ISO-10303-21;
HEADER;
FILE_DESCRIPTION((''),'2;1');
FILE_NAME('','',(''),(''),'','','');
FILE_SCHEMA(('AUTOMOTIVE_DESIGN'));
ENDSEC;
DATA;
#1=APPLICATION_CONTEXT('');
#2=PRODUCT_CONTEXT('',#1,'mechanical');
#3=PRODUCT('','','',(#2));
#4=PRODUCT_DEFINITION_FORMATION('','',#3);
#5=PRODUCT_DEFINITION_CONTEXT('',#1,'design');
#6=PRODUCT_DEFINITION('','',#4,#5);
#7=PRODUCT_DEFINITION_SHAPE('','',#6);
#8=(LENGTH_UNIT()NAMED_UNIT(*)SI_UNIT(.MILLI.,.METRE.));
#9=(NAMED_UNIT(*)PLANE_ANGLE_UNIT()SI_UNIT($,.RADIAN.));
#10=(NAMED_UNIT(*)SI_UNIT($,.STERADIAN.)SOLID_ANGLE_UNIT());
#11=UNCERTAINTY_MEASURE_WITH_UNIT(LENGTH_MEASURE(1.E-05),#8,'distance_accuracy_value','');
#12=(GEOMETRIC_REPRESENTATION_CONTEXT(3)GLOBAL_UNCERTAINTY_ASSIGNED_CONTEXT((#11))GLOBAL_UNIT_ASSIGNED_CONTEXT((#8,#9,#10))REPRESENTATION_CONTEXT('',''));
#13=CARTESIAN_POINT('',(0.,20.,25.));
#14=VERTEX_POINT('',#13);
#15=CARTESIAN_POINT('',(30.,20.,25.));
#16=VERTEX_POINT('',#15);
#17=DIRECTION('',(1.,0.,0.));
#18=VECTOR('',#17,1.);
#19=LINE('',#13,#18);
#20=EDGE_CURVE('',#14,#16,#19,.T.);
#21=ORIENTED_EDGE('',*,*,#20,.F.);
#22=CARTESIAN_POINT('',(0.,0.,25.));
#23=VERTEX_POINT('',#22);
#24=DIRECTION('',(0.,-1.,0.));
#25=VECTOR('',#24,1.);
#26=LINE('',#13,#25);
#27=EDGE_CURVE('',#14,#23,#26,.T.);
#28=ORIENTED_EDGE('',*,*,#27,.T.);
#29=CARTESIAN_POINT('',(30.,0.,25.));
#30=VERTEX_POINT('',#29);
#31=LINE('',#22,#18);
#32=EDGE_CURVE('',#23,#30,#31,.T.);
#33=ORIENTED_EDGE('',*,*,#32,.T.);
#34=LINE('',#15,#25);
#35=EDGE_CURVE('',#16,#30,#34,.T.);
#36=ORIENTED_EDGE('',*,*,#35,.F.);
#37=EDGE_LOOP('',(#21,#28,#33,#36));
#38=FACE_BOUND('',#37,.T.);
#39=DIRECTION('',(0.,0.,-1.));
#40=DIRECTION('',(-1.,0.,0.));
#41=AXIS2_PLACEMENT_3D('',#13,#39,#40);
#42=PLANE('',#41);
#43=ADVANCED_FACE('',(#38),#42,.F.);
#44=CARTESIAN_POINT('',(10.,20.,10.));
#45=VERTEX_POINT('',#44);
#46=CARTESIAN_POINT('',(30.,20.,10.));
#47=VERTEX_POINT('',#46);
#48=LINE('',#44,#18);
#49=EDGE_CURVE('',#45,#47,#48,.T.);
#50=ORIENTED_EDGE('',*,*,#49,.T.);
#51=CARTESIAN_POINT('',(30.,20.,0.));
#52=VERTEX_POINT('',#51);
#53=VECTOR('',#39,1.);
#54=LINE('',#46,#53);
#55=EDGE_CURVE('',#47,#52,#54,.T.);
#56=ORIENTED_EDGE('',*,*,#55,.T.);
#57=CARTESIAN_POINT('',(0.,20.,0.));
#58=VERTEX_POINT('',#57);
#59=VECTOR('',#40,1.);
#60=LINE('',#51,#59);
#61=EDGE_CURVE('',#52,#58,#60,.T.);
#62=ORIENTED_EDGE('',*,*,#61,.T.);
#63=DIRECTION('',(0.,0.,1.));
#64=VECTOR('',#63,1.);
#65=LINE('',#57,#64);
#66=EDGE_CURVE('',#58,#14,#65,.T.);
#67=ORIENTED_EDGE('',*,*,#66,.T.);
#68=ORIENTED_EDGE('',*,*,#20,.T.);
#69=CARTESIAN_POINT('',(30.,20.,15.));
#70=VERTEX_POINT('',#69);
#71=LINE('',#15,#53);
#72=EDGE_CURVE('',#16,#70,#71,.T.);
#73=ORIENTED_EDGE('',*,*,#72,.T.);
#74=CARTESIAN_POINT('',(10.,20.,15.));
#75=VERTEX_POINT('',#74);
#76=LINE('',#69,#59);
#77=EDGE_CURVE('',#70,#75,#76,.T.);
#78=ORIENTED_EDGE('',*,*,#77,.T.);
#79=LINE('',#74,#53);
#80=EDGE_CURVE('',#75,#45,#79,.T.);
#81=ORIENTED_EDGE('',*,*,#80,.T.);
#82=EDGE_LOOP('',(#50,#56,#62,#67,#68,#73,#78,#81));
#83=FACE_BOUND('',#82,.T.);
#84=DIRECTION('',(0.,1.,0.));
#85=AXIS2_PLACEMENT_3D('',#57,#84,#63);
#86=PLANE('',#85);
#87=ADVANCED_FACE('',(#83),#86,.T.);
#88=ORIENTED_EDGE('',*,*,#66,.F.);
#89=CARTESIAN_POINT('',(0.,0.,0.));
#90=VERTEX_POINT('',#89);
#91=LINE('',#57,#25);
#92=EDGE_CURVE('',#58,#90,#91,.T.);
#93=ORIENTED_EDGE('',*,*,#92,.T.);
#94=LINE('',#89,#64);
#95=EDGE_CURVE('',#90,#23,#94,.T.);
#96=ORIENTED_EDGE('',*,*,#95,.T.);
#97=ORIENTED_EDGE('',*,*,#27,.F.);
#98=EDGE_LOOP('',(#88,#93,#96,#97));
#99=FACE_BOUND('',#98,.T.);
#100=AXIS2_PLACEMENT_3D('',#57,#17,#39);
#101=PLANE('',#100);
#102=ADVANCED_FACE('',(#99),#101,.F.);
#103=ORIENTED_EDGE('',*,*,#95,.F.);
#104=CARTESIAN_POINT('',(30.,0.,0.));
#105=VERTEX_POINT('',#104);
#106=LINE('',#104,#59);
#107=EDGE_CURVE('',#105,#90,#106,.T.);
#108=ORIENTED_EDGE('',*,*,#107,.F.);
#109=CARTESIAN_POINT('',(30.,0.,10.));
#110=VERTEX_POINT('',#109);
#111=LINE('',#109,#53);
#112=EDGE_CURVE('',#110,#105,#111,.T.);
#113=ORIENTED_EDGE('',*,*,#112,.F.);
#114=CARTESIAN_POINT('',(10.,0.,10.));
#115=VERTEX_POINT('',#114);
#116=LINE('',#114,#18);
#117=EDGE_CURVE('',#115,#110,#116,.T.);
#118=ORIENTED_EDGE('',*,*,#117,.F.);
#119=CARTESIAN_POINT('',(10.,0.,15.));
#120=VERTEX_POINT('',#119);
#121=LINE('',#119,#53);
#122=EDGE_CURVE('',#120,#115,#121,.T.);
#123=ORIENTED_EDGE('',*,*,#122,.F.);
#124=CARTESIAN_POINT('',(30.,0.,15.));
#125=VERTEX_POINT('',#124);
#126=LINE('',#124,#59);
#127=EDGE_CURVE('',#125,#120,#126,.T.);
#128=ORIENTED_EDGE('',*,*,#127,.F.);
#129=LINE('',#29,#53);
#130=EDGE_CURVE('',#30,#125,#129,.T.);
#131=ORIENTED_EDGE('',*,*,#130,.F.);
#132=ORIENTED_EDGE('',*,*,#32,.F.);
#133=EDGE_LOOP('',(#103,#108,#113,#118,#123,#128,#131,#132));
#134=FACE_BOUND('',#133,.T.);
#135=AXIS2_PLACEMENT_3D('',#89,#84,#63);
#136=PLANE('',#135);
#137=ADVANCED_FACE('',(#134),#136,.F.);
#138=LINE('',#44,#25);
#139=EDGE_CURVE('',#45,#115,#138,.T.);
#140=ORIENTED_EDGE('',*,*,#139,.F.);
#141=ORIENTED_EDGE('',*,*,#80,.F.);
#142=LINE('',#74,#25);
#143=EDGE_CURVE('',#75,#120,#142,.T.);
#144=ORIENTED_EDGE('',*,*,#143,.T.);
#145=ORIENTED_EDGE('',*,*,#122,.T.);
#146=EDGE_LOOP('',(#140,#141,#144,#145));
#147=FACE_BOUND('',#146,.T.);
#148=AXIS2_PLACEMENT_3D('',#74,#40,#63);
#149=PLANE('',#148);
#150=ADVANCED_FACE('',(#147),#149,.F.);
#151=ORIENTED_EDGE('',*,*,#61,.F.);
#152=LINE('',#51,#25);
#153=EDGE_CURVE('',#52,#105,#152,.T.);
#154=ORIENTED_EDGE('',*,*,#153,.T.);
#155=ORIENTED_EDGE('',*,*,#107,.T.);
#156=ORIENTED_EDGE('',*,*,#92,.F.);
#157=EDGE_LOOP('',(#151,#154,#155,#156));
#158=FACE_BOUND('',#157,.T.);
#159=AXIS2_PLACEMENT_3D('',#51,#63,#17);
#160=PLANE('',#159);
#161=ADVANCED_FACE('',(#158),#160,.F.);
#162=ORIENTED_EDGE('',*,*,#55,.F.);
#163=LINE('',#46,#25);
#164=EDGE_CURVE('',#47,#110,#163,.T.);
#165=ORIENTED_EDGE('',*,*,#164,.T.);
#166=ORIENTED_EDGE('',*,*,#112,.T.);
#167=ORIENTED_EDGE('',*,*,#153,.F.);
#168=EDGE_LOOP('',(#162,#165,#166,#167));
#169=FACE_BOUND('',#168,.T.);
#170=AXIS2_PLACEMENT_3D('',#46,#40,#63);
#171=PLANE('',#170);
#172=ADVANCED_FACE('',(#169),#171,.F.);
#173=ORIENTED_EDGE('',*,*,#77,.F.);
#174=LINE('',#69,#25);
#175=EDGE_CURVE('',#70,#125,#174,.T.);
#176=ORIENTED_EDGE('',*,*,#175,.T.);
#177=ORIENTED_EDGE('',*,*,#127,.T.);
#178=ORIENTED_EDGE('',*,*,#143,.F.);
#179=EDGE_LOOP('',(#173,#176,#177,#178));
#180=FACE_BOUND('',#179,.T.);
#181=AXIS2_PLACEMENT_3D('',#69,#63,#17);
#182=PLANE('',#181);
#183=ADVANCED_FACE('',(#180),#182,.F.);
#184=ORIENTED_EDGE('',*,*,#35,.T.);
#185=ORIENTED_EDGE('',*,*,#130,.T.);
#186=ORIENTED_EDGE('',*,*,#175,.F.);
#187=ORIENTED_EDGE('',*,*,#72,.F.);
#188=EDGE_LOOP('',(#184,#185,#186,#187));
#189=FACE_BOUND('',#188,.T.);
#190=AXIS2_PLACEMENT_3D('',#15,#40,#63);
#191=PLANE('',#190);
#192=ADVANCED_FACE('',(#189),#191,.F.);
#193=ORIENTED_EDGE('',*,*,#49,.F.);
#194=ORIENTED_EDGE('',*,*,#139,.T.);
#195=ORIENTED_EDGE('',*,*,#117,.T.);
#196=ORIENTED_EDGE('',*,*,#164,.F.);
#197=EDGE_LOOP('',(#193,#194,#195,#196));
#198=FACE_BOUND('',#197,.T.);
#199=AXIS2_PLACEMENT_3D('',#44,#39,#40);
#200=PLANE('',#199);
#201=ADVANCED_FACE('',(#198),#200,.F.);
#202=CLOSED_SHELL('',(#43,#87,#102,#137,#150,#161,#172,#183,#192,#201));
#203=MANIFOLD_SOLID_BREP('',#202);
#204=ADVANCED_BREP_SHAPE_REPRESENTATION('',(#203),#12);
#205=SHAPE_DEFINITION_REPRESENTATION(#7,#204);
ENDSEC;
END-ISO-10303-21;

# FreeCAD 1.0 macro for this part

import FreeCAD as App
import Part
import Sketcher
Q = App.Units.Quantity

doc = App.newDocument("Part")
body = doc.addObject("PartDesign::Body", "Body")

sketch1 = doc.addObject("Sketcher::SketchObject", "Sketch")
body.addObject(sketch1)
sketch1.AttachmentSupport = (doc.XZ_Plane, [""])
sketch1.MapMode = "FlatFace"
sketch1.addGeometry([
    Part.LineSegment(App.Vector(0, 0, 0), App.Vector(0, 25, 0)),
    Part.LineSegment(App.Vector(0, 25, 0), App.Vector(30, 25, 0)),
    Part.LineSegment(App.Vector(30, 25, 0), App.Vector(30, 15, 0)),
    Part.LineSegment(App.Vector(30, 15, 0), App.Vector(10, 15, 0)),
    Part.LineSegment(App.Vector(10, 15, 0), App.Vector(10, 10, 0)),
    Part.LineSegment(App.Vector(10, 10, 0), App.Vector(30, 10, 0)),
    Part.LineSegment(App.Vector(30, 10, 0), App.Vector(30, 0, 0)),
    Part.LineSegment(App.Vector(30, 0, 0), App.Vector(0, 0, 0)),
], False)
sketch1.addConstraint([
    Sketcher.Constraint("Coincident", 0, 2, 1, 1),
    Sketcher.Constraint("Coincident", 1, 2, 2, 1),
    Sketcher.Constraint("Coincident", 2, 2, 3, 1),
    Sketcher.Constraint("Coincident", 3, 2, 4, 1),
    Sketcher.Constraint("Coincident", 4, 2, 5, 1),
    Sketcher.Constraint("Coincident", 5, 2, 6, 1),
    Sketcher.Constraint("Coincident", 6, 2, 7, 1),
    Sketcher.Constraint("Coincident", 7, 2, 0, 1),
    Sketcher.Constraint("Vertical", 0),
    Sketcher.Constraint("Horizontal", 1),
    Sketcher.Constraint("Vertical", 2),
    Sketcher.Constraint("Horizontal", 3),
    Sketcher.Constraint("Vertical", 4),
    Sketcher.Constraint("Horizontal", 5),
    Sketcher.Constraint("Vertical", 6),
    Sketcher.Constraint("Horizontal", 7),
    Sketcher.Constraint("Coincident", 7, 2, -1, 1),
    Sketcher.Constraint("Vertical", 2, 2, 5, 2),
    Sketcher.Constraint("Equal", 2, 6),
    Sketcher.Constraint("DistanceX", 1, 1, 1, 2, Q("30 mm")),
    Sketcher.Constraint("DistanceX", 3, 2, 3, 1, Q("20 mm")),
    Sketcher.Constraint("DistanceY", 0, 1, 0, 2, Q("25 mm")),
    Sketcher.Constraint("DistanceY", 2, 2, 2, 1, Q("10 mm")),
])
pad1 = doc.addObject("PartDesign::Pad", "Pad")
body.addObject(pad1)
pad1.Profile = sketch1
pad1.Length = 20
pad1.Reversed = True

doc.recompute()
